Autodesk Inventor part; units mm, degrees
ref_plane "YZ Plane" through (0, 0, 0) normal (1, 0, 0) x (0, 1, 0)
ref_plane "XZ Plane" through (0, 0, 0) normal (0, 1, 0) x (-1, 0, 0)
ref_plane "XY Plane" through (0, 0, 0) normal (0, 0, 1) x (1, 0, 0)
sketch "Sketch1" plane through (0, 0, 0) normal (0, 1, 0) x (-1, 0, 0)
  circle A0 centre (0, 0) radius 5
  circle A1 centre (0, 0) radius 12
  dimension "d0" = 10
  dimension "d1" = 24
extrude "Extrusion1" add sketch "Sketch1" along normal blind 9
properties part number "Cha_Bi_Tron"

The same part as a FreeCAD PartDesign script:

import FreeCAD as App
import Part
import Sketcher
from FreeCAD import Vector
Q = App.Units.Quantity

doc = App.newDocument("Part")
params = doc.addObject("Spreadsheet::Sheet", "Params")
for row, (alias, value) in enumerate([
    ("sketch1_diameter", "24 mm"),
    ("sketch1_diameter2", "10 mm"),
    ("pad1_length", "9 mm"),
], start=1):
    params.set(f"A{row}", alias)
    params.set(f"B{row}", "=" + value)
    params.setAlias(f"B{row}", alias)

body = doc.addObject("PartDesign::Body", "Body")

# Sketch on XZ plane
sketch1 = body.newObject("Sketcher::SketchObject", "Sketch")
sketch1.AttachmentSupport = (doc.getObject("XZ_Plane"), [""])
sketch1.MapMode = "FlatFace"
sketch1.addGeometry([
    Part.Circle(Vector(0, 0, 0), Vector(0, 0, 1), 12),
    Part.Circle(Vector(0, 0, 0), Vector(0, 0, 1), 5),
], False)
sketch1.addConstraint([
    Sketcher.Constraint("Coincident", 0, 3, -1, 1),
    Sketcher.Constraint("Coincident", 1, 3, -1, 1),
    Sketcher.Constraint("Diameter", 0, Q("24 mm")),
    Sketcher.Constraint("Diameter", 1, Q("10 mm")),
])
sketch1.setExpression("Constraints[2]", "Params.sketch1_diameter")
sketch1.setExpression("Constraints[3]", "Params.sketch1_diameter2")
pad1 = body.newObject("PartDesign::Pad", "Pad")
pad1.Profile = sketch1
pad1.setExpression("Length", "Params.pad1_length")
pad1.Reversed = True

doc.recompute()
